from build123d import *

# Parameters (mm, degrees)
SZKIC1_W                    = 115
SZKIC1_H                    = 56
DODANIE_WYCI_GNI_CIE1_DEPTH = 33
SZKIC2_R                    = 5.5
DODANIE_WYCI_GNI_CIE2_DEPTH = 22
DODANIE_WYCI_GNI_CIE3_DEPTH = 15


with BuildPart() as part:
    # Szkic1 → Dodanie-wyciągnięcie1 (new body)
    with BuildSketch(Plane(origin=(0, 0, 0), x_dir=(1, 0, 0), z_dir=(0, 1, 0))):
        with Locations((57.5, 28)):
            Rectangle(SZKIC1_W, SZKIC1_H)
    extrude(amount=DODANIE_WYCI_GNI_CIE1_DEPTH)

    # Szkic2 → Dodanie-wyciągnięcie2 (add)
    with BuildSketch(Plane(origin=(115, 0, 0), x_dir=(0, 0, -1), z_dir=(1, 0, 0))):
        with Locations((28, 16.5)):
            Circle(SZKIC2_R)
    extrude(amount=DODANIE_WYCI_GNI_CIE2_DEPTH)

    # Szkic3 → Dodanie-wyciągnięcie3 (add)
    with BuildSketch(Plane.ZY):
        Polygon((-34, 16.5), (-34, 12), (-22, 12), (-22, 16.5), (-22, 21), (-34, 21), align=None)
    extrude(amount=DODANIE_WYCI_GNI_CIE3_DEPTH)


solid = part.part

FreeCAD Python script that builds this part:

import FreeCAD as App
import Part
import Sketcher

V = App.Vector
Q = App.Units.Quantity


def add_polygon(sketch, points):
    """Adds a closed chain of lines whose ends are joined by coincident constraints."""
    first, n = sketch.GeometryCount, len(points)
    for a, b in zip(points, points[1:] + points[:1]):
        sketch.addGeometry(Part.LineSegment(App.Vector(*a, 0), App.Vector(*b, 0)), False)
    for i in range(n):
        sketch.addConstraint(Sketcher.Constraint("Coincident", first + i, 2, first + (i + 1) % n, 1))

doc = App.newDocument("Part")
body = doc.addObject("PartDesign::Body", "Body")

# Sketch on XZ plane
sketch1 = doc.addObject("Sketcher::SketchObject", "Sketch")
body.addObject(sketch1)
sketch1.AttachmentSupport = (doc.XZ_Plane, [""])
sketch1.MapMode = "FlatFace"
add_polygon(sketch1, [(0, -56), (0, 0), (115, 0), (115, -56)])  # lines 0-3
sketch1.addConstraint([
    Sketcher.Constraint("Vertical", 0),
    Sketcher.Constraint("Horizontal", 1),
    Sketcher.Constraint("Vertical", 2),
    Sketcher.Constraint("Horizontal", 3),
    Sketcher.Constraint("Coincident", 0, 2, -1, 1),
    Sketcher.Constraint("DistanceX", 1, 1, 1, 2, Q("115 mm")),
    Sketcher.Constraint("DistanceY", 0, 1, 0, 2, Q("56 mm")),
])
pad1 = doc.addObject("PartDesign::Pad", "Pad")
body.addObject(pad1)
pad1.Profile = sketch1
pad1.Length = 33
pad1.Reversed = True

# Sketch on YZ plane
sketch2 = doc.addObject("Sketcher::SketchObject", "Sketch001")
body.addObject(sketch2)
sketch2.AttachmentSupport = (doc.YZ_Plane, [""])
sketch2.MapMode = "FlatFace"
sketch2.AttachmentOffset = App.Placement(V(0, 0, 115), App.Rotation())
sketch2.addGeometry(Part.Circle(V(16.5, -28, 0), V(0, 0, 1), 5.5), False)
sketch2.addConstraint([
    Sketcher.Constraint("Diameter", 0, Q("11 mm")),
    Sketcher.Constraint("DistanceY", 0, 3, -1, 1, Q("28 mm")),
    Sketcher.Constraint("DistanceX", -1, 1, 0, 3, Q("16.5 mm")),
])
pad2 = doc.addObject("PartDesign::Pad", "Pad001")
body.addObject(pad2)
pad2.Profile = sketch2
pad2.Length = 22

# Sketch on YZ plane
sketch3 = doc.addObject("Sketcher::SketchObject", "Sketch002")
body.addObject(sketch3)
sketch3.AttachmentSupport = (doc.YZ_Plane, [""])
sketch3.MapMode = "FlatFace"
add_polygon(sketch3, [(12, -34), (12, -22), (21, -22), (21, -34)])  # lines 0-3
sketch3.addConstraint([
    Sketcher.Constraint("Vertical", 0),
    Sketcher.Constraint("Horizontal", 1),
    Sketcher.Constraint("Vertical", 2),
    Sketcher.Constraint("Horizontal", 3),
    Sketcher.Constraint("DistanceX", 1, 1, 1, 2, Q("9 mm")),
    Sketcher.Constraint("DistanceY", 0, 1, 0, 2, Q("12 mm")),
    Sketcher.Constraint("DistanceX", -1, 1, 0, 2, Q("12 mm")),
    Sketcher.Constraint("DistanceY", 0, 2, -1, 1, Q("22 mm")),
])
pad3 = doc.addObject("PartDesign::Pad", "Pad002")
body.addObject(pad3)
pad3.Profile = sketch3
pad3.Length = 15
pad3.Reversed = True

doc.recompute()
